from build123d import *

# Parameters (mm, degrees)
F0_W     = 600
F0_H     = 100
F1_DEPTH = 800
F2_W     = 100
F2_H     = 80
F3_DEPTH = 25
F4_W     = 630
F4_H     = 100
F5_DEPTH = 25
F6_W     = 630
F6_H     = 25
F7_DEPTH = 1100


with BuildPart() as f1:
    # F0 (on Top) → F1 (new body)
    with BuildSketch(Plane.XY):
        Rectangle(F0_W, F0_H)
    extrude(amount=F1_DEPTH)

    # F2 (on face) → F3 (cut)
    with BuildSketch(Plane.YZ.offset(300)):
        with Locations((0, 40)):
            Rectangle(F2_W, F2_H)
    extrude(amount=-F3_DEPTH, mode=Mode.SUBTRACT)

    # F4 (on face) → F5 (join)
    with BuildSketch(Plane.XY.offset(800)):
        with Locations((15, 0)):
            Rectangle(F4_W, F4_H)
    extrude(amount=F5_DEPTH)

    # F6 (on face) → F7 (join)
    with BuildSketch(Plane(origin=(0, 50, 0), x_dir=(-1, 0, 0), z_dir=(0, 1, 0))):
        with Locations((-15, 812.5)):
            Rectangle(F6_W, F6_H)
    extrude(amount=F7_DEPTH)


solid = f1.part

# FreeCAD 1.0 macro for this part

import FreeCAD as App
import Part
import Sketcher
Q = App.Units.Quantity


def add_polygon(sketch, points):
    """Adds a closed chain of lines whose ends are joined by coincident constraints."""
    first, n = sketch.GeometryCount, len(points)
    for a, b in zip(points, points[1:] + points[:1]):
        sketch.addGeometry(Part.LineSegment(App.Vector(*a, 0), App.Vector(*b, 0)), False)
    for i in range(n):
        sketch.addConstraint(Sketcher.Constraint("Coincident", first + i, 2, first + (i + 1) % n, 1))

doc = App.newDocument("Part")
params = doc.addObject("Spreadsheet::Sheet", "Params")
for row, (alias, value) in enumerate([
    ("sketch1_width", "600 mm"),
    ("sketch1_height", "100 mm"),
    ("pad1_length", "800 mm"),
    ("sketch2_width", "100 mm"),
    ("sketch2_height", "80 mm"),
    ("pocket1_length", "25 mm"),
    ("sketch3_width", "630 mm"),
    ("sketch3_height", "100 mm"),
    ("pad2_length", "25 mm"),
    ("sketch4_width", "630 mm"),
    ("sketch4_height", "25 mm"),
    ("pad3_length", "1100 mm"),
], start=1):
    params.set(f"A{row}", alias)
    params.set(f"B{row}", "=" + value)
    params.setAlias(f"B{row}", alias)

body = doc.addObject("PartDesign::Body", "Body")

# Sketch on XY plane
sketch1 = doc.addObject("Sketcher::SketchObject", "Sketch")
body.addObject(sketch1)
sketch1.AttachmentSupport = (doc.XY_Plane, [""])
sketch1.MapMode = "FlatFace"
add_polygon(sketch1, [(-300, 50), (-300, -50), (300, -50), (300, 50)])  # lines 0-3
sketch1.addConstraint([
    Sketcher.Constraint("Vertical", 0),
    Sketcher.Constraint("Horizontal", 1),
    Sketcher.Constraint("Vertical", 2),
    Sketcher.Constraint("Horizontal", 3),
    Sketcher.Constraint("Symmetric", 0, 2, 2, 2, -1, 1),
    Sketcher.Constraint("DistanceX", 1, 1, 1, 2, Q("600 mm")),
    Sketcher.Constraint("DistanceY", 0, 2, 0, 1, Q("100 mm")),
])
sketch1.setExpression("Constraints[9]", "Params.sketch1_width")
sketch1.setExpression("Constraints[10]", "Params.sketch1_height")
pad1 = doc.addObject("PartDesign::Pad", "Pad")
body.addObject(pad1)
pad1.Profile = sketch1
pad1.setExpression("Length", "Params.pad1_length")

# Sketch on YZ plane
sketch2 = doc.addObject("Sketcher::SketchObject", "Sketch001")
body.addObject(sketch2)
sketch2.AttachmentSupport = (doc.YZ_Plane, [""])
sketch2.MapMode = "FlatFace"
sketch2.AttachmentOffset = App.Placement(App.Vector(0, 0, 300), App.Rotation())
add_polygon(sketch2, [(-50, 80), (-50, 0), (50, 0), (50, 80)])  # lines 0-3
sketch2.addConstraint([
    Sketcher.Constraint("Vertical", 0),
    Sketcher.Constraint("Horizontal", 1),
    Sketcher.Constraint("Vertical", 2),
    Sketcher.Constraint("Horizontal", 3),
    Sketcher.Constraint("Symmetric", 0, 2, 1, 2, -1, 1),
    Sketcher.Constraint("DistanceX", 1, 1, 1, 2, Q("100 mm")),
    Sketcher.Constraint("DistanceY", 0, 2, 0, 1, Q("80 mm")),
])
sketch2.setExpression("Constraints[9]", "Params.sketch2_width")
sketch2.setExpression("Constraints[10]", "Params.sketch2_height")
pocket1 = doc.addObject("PartDesign::Pocket", "Pocket")
body.addObject(pocket1)
pocket1.Profile = sketch2
pocket1.setExpression("Length", "Params.pocket1_length")

# Sketch on XY plane
sketch3 = doc.addObject("Sketcher::SketchObject", "Sketch002")
body.addObject(sketch3)
sketch3.AttachmentSupport = (doc.XY_Plane, [""])
sketch3.MapMode = "FlatFace"
sketch3.AttachmentOffset = App.Placement(App.Vector(0, 0, 800), App.Rotation())
add_polygon(sketch3, [(-300, 50), (-300, -50), (330, -50), (330, 50)])  # lines 0-3
sketch3.addConstraint([
    Sketcher.Constraint("Vertical", 0),
    Sketcher.Constraint("Horizontal", 1),
    Sketcher.Constraint("Vertical", 2),
    Sketcher.Constraint("Horizontal", 3),
    Sketcher.Constraint("DistanceX", 1, 1, 1, 2, Q("630 mm")),
    Sketcher.Constraint("DistanceY", 0, 2, 0, 1, Q("100 mm")),
    Sketcher.Constraint("DistanceX", 0, 2, -1, 1, Q("300 mm")),
    Sketcher.Constraint("DistanceY", 0, 2, -1, 1, Q("50 mm")),
])
sketch3.setExpression("Constraints[8]", "Params.sketch3_width")
sketch3.setExpression("Constraints[9]", "Params.sketch3_height")
pad2 = doc.addObject("PartDesign::Pad", "Pad001")
body.addObject(pad2)
pad2.Profile = sketch3
pad2.setExpression("Length", "Params.pad2_length")

# Sketch on XZ plane
sketch4 = doc.addObject("Sketcher::SketchObject", "Sketch003")
body.addObject(sketch4)
sketch4.AttachmentSupport = (doc.XZ_Plane, [""])
sketch4.MapMode = "FlatFace"
sketch4.AttachmentOffset = App.Placement(App.Vector(0, 0, -50), App.Rotation())
add_polygon(sketch4, [(330, 825), (330, 800), (-300, 800), (-300, 825)])  # lines 0-3
sketch4.addConstraint([
    Sketcher.Constraint("Vertical", 0),
    Sketcher.Constraint("Horizontal", 1),
    Sketcher.Constraint("Vertical", 2),
    Sketcher.Constraint("Horizontal", 3),
    Sketcher.Constraint("DistanceX", 1, 2, 1, 1, Q("630 mm")),
    Sketcher.Constraint("DistanceY", 0, 2, 0, 1, Q("25 mm")),
    Sketcher.Constraint("DistanceX", -1, 1, 0, 2, Q("330 mm")),
    Sketcher.Constraint("DistanceY", -1, 1, 0, 2, Q("800 mm")),
])
sketch4.setExpression("Constraints[8]", "Params.sketch4_width")
sketch4.setExpression("Constraints[9]", "Params.sketch4_height")
pad3 = doc.addObject("PartDesign::Pad", "Pad002")
body.addObject(pad3)
pad3.Profile = sketch4
pad3.setExpression("Length", "Params.pad3_length")
pad3.Reversed = True

doc.recompute()
